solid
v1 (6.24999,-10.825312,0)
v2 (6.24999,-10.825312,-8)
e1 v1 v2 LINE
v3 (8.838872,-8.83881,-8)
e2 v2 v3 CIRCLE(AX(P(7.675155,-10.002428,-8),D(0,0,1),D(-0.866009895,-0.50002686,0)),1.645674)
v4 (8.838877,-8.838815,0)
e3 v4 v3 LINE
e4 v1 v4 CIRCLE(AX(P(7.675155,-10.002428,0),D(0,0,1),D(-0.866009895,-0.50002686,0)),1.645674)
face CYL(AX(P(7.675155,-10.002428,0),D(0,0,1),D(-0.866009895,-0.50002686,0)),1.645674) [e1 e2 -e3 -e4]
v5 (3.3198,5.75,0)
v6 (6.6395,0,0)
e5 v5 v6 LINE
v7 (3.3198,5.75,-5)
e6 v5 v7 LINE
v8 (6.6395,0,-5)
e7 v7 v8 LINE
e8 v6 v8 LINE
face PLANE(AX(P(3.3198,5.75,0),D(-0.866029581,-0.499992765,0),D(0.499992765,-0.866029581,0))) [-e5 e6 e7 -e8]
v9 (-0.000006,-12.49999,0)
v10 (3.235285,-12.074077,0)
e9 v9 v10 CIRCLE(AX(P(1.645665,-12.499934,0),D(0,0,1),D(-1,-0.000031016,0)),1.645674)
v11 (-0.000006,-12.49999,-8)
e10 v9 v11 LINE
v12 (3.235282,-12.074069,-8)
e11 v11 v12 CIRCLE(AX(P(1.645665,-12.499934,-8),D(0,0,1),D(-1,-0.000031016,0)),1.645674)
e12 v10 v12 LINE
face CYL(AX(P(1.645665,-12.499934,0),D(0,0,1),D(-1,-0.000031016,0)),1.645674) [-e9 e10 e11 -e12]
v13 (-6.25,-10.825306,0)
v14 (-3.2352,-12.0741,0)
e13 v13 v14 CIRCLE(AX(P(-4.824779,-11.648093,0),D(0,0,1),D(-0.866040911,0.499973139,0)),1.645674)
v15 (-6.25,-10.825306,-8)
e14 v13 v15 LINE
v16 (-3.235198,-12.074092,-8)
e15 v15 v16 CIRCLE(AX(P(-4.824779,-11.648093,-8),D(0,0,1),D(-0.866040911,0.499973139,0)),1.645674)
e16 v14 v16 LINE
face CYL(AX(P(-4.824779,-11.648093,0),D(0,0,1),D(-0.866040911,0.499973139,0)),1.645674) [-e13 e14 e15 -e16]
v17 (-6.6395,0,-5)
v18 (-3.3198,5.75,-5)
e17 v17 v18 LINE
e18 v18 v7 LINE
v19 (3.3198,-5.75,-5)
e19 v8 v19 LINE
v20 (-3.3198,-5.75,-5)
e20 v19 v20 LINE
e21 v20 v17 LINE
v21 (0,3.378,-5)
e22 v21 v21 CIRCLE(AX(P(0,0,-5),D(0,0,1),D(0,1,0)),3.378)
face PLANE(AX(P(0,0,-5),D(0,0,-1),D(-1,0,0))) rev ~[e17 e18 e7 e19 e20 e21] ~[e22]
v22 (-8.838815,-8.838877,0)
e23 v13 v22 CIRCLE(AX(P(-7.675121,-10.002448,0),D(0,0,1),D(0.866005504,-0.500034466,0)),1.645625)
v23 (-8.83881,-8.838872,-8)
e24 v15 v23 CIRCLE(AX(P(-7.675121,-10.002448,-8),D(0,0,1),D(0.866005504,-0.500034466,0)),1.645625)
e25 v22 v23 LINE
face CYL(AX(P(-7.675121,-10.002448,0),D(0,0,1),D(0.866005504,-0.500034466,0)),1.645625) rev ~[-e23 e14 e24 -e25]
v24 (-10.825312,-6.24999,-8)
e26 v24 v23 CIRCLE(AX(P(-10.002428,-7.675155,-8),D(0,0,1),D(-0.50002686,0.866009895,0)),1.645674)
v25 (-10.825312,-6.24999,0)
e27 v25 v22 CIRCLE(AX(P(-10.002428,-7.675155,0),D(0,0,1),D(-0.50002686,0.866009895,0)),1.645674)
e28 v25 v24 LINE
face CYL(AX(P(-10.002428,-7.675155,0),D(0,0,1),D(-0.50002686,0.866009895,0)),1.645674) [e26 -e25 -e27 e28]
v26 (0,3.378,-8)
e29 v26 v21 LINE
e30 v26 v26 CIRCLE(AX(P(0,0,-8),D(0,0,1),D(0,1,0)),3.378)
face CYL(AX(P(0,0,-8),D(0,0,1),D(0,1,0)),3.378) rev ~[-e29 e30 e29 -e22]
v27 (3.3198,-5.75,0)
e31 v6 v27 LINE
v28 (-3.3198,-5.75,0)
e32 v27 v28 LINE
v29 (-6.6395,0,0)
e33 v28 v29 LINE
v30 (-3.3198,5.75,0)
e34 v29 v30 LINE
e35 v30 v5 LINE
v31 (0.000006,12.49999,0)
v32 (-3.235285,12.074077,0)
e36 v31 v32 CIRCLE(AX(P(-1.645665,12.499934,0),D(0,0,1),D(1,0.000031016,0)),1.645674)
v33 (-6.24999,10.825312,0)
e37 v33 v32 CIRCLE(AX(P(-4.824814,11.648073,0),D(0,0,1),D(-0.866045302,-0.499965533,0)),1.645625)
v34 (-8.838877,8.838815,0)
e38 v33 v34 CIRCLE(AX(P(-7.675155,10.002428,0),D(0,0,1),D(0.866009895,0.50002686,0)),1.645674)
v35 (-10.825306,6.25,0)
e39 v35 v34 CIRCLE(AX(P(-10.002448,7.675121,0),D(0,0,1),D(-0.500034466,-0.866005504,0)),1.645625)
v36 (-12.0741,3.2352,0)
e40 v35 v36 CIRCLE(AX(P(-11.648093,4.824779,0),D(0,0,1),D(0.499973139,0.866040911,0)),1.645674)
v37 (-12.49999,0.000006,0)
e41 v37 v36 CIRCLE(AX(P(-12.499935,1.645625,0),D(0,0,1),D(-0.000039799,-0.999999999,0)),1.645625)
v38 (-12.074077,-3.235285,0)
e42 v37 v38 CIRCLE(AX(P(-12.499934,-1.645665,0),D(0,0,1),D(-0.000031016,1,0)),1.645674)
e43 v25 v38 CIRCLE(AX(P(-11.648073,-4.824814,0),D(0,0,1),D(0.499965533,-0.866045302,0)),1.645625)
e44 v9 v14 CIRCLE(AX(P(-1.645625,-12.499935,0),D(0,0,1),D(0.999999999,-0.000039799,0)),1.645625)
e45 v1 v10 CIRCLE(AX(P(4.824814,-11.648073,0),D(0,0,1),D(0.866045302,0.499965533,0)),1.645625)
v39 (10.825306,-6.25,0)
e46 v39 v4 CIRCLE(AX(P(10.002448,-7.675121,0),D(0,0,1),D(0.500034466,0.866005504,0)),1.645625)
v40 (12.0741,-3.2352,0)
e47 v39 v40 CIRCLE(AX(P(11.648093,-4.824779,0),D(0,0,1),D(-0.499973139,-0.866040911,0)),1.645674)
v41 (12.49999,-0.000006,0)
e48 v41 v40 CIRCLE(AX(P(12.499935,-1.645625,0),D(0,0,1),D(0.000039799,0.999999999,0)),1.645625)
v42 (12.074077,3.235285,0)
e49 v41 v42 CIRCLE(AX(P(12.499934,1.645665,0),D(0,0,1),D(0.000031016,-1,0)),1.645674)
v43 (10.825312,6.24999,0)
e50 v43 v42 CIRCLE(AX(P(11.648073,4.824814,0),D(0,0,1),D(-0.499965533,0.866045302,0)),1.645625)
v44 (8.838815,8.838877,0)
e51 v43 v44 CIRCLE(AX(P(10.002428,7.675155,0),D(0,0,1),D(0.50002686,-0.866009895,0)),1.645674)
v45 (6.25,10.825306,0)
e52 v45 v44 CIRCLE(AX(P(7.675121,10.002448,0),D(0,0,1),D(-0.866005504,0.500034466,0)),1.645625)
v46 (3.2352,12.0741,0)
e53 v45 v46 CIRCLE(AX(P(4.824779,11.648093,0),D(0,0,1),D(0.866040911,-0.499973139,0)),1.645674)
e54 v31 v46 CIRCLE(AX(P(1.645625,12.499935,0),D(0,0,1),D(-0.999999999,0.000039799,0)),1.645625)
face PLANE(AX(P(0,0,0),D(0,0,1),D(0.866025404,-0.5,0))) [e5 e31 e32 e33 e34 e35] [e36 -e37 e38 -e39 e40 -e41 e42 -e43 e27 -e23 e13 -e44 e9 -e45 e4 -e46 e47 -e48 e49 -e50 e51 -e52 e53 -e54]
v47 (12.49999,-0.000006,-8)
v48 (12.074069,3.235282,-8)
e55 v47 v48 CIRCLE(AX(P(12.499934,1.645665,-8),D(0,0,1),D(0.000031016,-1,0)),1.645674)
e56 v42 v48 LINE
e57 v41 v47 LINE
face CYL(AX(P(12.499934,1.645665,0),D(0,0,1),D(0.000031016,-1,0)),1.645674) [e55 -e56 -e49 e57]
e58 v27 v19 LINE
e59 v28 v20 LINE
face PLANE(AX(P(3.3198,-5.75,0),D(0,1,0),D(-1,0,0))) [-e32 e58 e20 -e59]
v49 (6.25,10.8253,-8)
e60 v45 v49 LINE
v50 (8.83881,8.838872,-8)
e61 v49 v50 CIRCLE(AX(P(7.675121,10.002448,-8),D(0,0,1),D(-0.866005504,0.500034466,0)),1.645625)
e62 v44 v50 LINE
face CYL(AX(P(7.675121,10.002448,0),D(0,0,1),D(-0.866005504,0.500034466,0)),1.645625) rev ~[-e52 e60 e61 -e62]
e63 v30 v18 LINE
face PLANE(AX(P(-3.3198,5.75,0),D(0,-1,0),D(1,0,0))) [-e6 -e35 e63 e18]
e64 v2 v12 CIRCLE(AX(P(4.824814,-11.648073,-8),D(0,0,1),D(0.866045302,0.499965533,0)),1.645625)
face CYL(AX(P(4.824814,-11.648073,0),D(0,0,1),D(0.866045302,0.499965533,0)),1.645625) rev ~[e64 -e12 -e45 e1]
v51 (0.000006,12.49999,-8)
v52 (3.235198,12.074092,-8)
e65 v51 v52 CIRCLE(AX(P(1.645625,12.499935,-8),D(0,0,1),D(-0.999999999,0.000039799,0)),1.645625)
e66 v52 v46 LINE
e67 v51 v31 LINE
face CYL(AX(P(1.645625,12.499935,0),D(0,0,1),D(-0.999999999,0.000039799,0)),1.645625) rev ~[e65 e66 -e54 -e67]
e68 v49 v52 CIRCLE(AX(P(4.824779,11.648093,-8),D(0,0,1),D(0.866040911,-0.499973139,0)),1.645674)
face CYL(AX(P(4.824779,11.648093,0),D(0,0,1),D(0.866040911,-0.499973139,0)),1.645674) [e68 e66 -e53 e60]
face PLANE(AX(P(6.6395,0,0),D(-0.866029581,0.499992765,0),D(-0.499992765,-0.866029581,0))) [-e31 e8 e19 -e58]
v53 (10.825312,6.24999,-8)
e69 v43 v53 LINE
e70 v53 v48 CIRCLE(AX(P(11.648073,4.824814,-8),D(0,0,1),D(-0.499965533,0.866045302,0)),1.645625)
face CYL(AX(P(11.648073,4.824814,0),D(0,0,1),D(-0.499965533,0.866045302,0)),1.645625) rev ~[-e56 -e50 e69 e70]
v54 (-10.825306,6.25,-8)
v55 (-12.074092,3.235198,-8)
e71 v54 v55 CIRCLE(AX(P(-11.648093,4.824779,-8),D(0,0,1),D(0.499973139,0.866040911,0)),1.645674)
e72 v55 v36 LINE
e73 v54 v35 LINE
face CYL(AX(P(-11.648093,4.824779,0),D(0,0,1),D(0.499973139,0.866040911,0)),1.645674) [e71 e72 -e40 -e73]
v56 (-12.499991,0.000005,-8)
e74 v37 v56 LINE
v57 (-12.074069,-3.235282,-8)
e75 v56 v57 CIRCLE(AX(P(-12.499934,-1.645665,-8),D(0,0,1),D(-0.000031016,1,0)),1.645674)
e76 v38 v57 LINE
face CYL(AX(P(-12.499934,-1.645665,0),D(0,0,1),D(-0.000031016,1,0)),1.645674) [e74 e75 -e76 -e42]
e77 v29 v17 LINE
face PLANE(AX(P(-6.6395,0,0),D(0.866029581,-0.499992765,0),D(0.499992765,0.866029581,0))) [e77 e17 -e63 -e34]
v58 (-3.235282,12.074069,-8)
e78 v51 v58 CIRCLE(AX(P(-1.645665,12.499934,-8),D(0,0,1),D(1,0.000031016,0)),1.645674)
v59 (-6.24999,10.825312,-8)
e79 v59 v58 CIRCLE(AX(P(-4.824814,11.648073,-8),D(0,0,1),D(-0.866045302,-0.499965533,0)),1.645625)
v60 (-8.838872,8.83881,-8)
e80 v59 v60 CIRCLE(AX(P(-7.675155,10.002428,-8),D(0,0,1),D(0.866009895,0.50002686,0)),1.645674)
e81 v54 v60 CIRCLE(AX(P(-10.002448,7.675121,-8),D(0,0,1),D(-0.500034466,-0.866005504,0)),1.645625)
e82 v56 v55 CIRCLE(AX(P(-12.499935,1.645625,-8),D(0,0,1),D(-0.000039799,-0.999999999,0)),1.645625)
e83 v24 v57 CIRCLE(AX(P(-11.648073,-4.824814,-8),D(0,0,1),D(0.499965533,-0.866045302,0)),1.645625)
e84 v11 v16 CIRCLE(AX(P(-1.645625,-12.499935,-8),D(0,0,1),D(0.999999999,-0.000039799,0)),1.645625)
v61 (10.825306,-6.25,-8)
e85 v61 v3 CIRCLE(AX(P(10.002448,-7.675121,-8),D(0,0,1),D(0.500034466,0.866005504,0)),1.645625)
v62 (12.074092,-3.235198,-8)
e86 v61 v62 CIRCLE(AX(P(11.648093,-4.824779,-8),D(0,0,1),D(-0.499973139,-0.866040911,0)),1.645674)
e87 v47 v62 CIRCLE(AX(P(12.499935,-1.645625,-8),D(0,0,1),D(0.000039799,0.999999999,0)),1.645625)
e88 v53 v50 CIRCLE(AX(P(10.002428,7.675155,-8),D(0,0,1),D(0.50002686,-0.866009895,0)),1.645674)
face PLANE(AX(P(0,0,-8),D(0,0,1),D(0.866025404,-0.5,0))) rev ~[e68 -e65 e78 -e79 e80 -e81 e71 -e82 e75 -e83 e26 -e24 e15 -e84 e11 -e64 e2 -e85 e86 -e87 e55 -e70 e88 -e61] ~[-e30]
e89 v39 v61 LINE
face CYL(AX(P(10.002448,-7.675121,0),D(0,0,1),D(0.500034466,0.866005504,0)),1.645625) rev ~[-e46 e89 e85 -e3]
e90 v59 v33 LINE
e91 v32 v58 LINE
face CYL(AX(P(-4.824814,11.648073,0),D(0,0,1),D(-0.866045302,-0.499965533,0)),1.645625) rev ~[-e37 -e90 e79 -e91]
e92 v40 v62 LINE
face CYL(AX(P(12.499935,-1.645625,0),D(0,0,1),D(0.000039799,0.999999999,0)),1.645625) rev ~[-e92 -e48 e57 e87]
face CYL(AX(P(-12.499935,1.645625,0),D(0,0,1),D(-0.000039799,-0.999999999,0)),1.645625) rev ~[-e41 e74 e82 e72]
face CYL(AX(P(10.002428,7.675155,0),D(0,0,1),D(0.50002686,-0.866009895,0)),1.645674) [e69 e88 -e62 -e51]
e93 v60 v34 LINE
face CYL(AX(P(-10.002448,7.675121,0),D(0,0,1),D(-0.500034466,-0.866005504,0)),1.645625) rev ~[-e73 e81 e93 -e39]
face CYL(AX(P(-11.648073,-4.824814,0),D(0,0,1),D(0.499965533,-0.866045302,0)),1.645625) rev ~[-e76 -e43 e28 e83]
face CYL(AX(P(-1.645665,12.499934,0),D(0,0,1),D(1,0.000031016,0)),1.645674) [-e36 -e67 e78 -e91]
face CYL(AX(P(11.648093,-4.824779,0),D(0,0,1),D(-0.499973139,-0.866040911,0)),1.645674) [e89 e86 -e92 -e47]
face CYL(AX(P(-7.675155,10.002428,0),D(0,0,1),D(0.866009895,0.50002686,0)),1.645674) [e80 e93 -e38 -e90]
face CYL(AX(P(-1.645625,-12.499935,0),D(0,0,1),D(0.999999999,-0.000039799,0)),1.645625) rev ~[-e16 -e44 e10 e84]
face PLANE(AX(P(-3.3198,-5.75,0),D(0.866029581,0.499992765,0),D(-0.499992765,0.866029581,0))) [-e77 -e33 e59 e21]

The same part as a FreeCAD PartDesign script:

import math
import FreeCAD as App
import Part
import Sketcher
from FreeCAD import Vector
Q = App.Units.Quantity


def add_polygon(sketch, points):
    """Adds a closed chain of lines whose ends are joined by coincident constraints."""
    first, n = sketch.GeometryCount, len(points)
    for a, b in zip(points, points[1:] + points[:1]):
        sketch.addGeometry(Part.LineSegment(App.Vector(*a, 0), App.Vector(*b, 0)), False)
    for i in range(n):
        sketch.addConstraint(Sketcher.Constraint("Coincident", first + i, 2, first + (i + 1) % n, 1))

doc = App.newDocument("Part")
body = doc.addObject("PartDesign::Body", "Body")

sketch1 = doc.addObject("Sketcher::SketchObject", "Sketch")
body.addObject(sketch1)
sketch1.AttachmentSupport = (doc.XY_Plane, [""])
sketch1.MapMode = "FlatFace"
sketch1.addGeometry(Part.Circle(Vector(0, 0, 0), Vector(0, 0, 1), 12.5), False)
add_polygon(sketch1, [(-3.3198, 5.75), (3.3198, 5.75), (6.6395, 0), (3.3198, -5.75), (-3.3198, -5.75), (-6.6395, 0)])
sketch1.addConstraint([
    Sketcher.Constraint("Horizontal", 1),
    Sketcher.Constraint("Horizontal", 4),
    Sketcher.Constraint("Coincident", 0, 3, -1, 1),
    Sketcher.Constraint("Symmetric", 1, 2, 4, 2, -1, 1),
    Sketcher.Constraint("Symmetric", 2, 2, 5, 2, -1, 1),
    Sketcher.Constraint("PointOnObject", 2, 2, -1),
    Sketcher.Constraint("Parallel", 3, 6),
    Sketcher.Constraint("Vertical", 1, 2, 3, 2),
    Sketcher.Constraint("Diameter", 0, Q("25 mm")),
    Sketcher.Constraint("DistanceY", 3, 2, 1, 2, Q("11.5 mm")),
    Sketcher.Constraint("Angle", 2, Q("-60.0005 deg")),
    Sketcher.Constraint("DistanceX", 1, 1, 1, 2, Q("6.6396 mm")),
])
pad1 = doc.addObject("PartDesign::Pad", "Pad")
body.addObject(pad1)
pad1.Profile = sketch1
pad1.Length = 5
pad1.Reversed = True

sketch2 = doc.addObject("Sketcher::SketchObject", "Sketch001")
body.addObject(sketch2)
sketch2.AttachmentSupport = (doc.XY_Plane, [""])
sketch2.MapMode = "FlatFace"
sketch2.AttachmentOffset = App.Placement(Vector(0, 0, -5), App.Rotation())
sketch2.addGeometry(Part.Circle(Vector(0, 0, 0), Vector(0, 0, 1), 12.5), False)
sketch2.addConstraint([
    Sketcher.Constraint("Coincident", 0, 3, -1, 1),
    Sketcher.Constraint("Diameter", 0, Q("25 mm")),
])
pad2 = doc.addObject("PartDesign::Pad", "Pad001")
body.addObject(pad2)
pad2.Profile = sketch2
pad2.Length = 3
pad2.Reversed = True

sketch3 = doc.addObject("Sketcher::SketchObject", "Sketch002")
body.addObject(sketch3)
sketch3.AttachmentSupport = (doc.XY_Plane, [""])
sketch3.MapMode = "FlatFace"
sketch3.AttachmentOffset = App.Placement(Vector(0, 0, -8), App.Rotation())
sketch3.addGeometry(Part.Circle(Vector(0, 0, 0), Vector(0, 0, 1), 3.378), False)
sketch3.addConstraint([
    Sketcher.Constraint("Coincident", 0, 3, -1, 1),
    Sketcher.Constraint("Diameter", 0, Q("6.756 mm")),
])
doc.recompute()
hole = doc.addObject("PartDesign::Hole", "Hole")
body.addObject(hole)
hole.Profile = sketch3
hole.ThreadType = "None"
hole.Diameter = 6.756
hole.DepthType = "ThroughAll"
hole.Reversed = True

sketch4 = doc.addObject("Sketcher::SketchObject", "Sketch003")
body.addObject(sketch4)
sketch4.AttachmentSupport = (doc.XY_Plane, [""])
sketch4.MapMode = "FlatFace"
sketch4.addGeometry([
    Part.ArcOfCircle(Part.Circle(Vector(0, 0, 0), Vector(0, 0, 1), 12.5), math.radians(75.000201), math.radians(90)),
    Part.ArcOfCircle(Part.Circle(Vector(1.6457, 12.5, 0), Vector(0, 0, 1), 1.6457), math.radians(180), math.radians(345.000176)),
], False)
sketch4.addConstraint([
    Sketcher.Constraint("Coincident", 0, 1, 1, 2),
    Sketcher.Constraint("Coincident", 1, 1, 0, 2),
    Sketcher.Constraint("Coincident", 0, 3, -1, 1),
    Sketcher.Constraint("PointOnObject", 1, 1, -2),
    Sketcher.Constraint("Radius", 0, Q("12.5 mm")),
    Sketcher.Constraint("DistanceY", -1, 1, 1, 3, Q("12.5 mm")),
    Sketcher.Constraint("Radius", 1, Q("1.6457 mm")),
])
pocket1 = doc.addObject("PartDesign::Pocket", "Pocket")
body.addObject(pocket1)
pocket1.Profile = sketch4
pocket1.Type = "ThroughAll"

sketch5 = doc.addObject("Sketcher::SketchObject", "Sketch004")
body.addObject(sketch5)
sketch5.AttachmentSupport = (doc.XY_Plane, [""])
sketch5.MapMode = "FlatFace"
sketch5.addGeometry([
    Part.ArcOfCircle(Part.Circle(Vector(0, 0, 0), Vector(0, 0, 1), 12.5), math.radians(59.99996), math.radians(75.000201)),
    Part.ArcOfCircle(Part.Circle(Vector(4.8248, 11.6481, 0), Vector(0, 0, 1), 1.645659), math.radians(-29.998806), math.radians(164.997714)),
], False)
sketch5.addConstraint([
    Sketcher.Constraint("Coincident", 0, 1, 1, 1),
    Sketcher.Constraint("Coincident", 1, 2, 0, 2),
    Sketcher.Constraint("Coincident", 0, 3, -1, 1),
    Sketcher.Constraint("Radius", 0, Q("12.5 mm")),
    Sketcher.Constraint("Radius", 1, Q("1.6457 mm")),
    Sketcher.Constraint("DistanceX", -1, 1, 0, 1, Q("6.25 mm")),
    Sketcher.Constraint("DistanceY", -1, 1, 1, 3, Q("11.648 mm")),
])
pad3 = doc.addObject("PartDesign::Pad", "Pad002")
body.addObject(pad3)
pad3.Profile = sketch5
pad3.Length = 8
pad3.Reversed = True
doc.recompute()

polarpattern = doc.addObject("PartDesign::PolarPattern", "PolarPattern")
body.addObject(polarpattern)
polarpattern.Originals = [pocket1, pad3]
polarpattern.Axis = (doc.Z_Axis, [""])
polarpattern.Angle = 360
polarpattern.Occurrences = 12
body.Tip = polarpattern

doc.recompute()
